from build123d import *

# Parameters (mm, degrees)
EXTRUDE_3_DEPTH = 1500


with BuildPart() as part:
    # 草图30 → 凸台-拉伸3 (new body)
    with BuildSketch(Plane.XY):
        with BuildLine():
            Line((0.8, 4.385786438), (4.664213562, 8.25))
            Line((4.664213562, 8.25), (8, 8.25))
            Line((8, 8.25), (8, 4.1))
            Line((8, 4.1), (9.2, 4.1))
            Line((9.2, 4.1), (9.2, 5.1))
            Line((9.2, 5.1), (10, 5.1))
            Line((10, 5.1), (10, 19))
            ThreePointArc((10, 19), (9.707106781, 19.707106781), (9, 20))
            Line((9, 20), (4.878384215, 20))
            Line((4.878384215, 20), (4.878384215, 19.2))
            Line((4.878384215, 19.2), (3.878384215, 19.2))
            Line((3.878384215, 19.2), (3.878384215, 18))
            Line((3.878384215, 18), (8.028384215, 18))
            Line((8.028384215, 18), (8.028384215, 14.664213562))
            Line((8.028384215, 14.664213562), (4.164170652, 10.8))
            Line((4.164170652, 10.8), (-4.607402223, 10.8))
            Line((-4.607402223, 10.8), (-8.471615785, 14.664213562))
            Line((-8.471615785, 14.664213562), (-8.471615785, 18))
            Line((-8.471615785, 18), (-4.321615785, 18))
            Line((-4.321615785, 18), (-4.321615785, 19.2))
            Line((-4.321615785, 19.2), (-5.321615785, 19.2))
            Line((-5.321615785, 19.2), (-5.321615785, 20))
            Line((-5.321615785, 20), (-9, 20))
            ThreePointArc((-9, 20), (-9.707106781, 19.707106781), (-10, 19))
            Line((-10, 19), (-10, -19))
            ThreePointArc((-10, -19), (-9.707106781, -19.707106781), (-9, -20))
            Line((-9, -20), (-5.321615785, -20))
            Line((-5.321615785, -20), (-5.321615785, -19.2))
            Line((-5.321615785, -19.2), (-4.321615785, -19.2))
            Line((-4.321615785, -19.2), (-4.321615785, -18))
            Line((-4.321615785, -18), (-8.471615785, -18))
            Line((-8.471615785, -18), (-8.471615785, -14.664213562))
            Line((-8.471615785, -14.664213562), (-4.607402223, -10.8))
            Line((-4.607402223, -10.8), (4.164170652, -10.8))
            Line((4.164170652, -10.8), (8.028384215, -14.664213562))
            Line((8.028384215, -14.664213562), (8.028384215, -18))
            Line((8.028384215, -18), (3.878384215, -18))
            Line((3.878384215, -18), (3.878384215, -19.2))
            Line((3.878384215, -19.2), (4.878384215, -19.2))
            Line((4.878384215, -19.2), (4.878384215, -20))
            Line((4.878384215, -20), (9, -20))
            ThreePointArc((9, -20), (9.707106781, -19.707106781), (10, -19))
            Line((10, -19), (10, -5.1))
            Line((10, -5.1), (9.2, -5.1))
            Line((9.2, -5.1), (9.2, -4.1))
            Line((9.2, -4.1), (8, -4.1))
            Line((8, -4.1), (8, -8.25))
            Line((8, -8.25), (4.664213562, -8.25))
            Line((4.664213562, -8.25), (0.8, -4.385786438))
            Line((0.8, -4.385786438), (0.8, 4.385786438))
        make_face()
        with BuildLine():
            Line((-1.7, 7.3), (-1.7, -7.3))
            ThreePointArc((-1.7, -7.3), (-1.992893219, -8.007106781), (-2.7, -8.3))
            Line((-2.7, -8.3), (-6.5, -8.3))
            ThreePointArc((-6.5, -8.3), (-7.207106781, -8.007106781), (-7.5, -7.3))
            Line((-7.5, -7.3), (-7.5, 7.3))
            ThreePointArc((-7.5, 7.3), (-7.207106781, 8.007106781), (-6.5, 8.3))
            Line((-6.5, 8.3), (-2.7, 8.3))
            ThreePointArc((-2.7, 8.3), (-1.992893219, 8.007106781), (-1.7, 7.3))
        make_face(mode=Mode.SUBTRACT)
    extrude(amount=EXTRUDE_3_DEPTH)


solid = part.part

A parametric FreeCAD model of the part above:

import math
import FreeCAD as App
import Part
import Sketcher
Q = App.Units.Quantity

doc = App.newDocument("Part")
body = doc.addObject("PartDesign::Body", "Body")

# Sketch on XY plane
sketch1 = doc.addObject("Sketcher::SketchObject", "Sketch")
body.addObject(sketch1)
sketch1.AttachmentSupport = (doc.XY_Plane, [""])
sketch1.MapMode = "FlatFace"
sketch1.addGeometry([
    Part.LineSegment(App.Vector(0.8, 4.4, 0), App.Vector(4.7, 8.2, 0)),  # 0
    Part.LineSegment(App.Vector(4.7, 8.2, 0), App.Vector(8, 8.2, 0)),  # 1
    Part.LineSegment(App.Vector(8, 8.2, 0), App.Vector(8, 4.1, 0)),  # 2
    Part.LineSegment(App.Vector(8, 4.1, 0), App.Vector(9.2, 4.1, 0)),  # 3
    Part.LineSegment(App.Vector(9.2, 4.1, 0), App.Vector(9.2, 5.1, 0)),  # 4
    Part.LineSegment(App.Vector(9.2, 5.1, 0), App.Vector(10, 5.1, 0)),  # 5
    Part.LineSegment(App.Vector(10, 5.1, 0), App.Vector(10, 19, 0)),  # 6
    Part.ArcOfCircle(Part.Circle(App.Vector(9, 19, 0), App.Vector(0, 0, 1), 1), math.radians(0), math.radians(90)),  # 7
    Part.LineSegment(App.Vector(9, 20, 0), App.Vector(4.9, 20, 0)),  # 8
    Part.LineSegment(App.Vector(4.9, 20, 0), App.Vector(4.9, 19.2, 0)),  # 9
    Part.LineSegment(App.Vector(4.9, 19.2, 0), App.Vector(3.9, 19.2, 0)),  # 10
    Part.LineSegment(App.Vector(3.9, 19.2, 0), App.Vector(3.9, 18, 0)),  # 11
    Part.LineSegment(App.Vector(3.9, 18, 0), App.Vector(8, 18, 0)),  # 12
    Part.LineSegment(App.Vector(8, 18, 0), App.Vector(8, 14.7, 0)),  # 13
    Part.LineSegment(App.Vector(8, 14.7, 0), App.Vector(4.2, 10.8, 0)),  # 14
    Part.LineSegment(App.Vector(4.2, 10.8, 0), App.Vector(-4.6, 10.8, 0)),  # 15
    Part.LineSegment(App.Vector(-4.6, 10.8, 0), App.Vector(-8.5, 14.7, 0)),  # 16
    Part.LineSegment(App.Vector(-8.5, 14.7, 0), App.Vector(-8.5, 18, 0)),  # 17
    Part.LineSegment(App.Vector(-8.5, 18, 0), App.Vector(-4.3, 18, 0)),  # 18
    Part.LineSegment(App.Vector(-4.3, 18, 0), App.Vector(-4.3, 19.2, 0)),  # 19
    Part.LineSegment(App.Vector(-4.3, 19.2, 0), App.Vector(-5.3, 19.2, 0)),  # 20
    Part.LineSegment(App.Vector(-5.3, 19.2, 0), App.Vector(-5.3, 20, 0)),  # 21
    Part.LineSegment(App.Vector(-5.3, 20, 0), App.Vector(-9, 20, 0)),  # 22
    Part.ArcOfCircle(Part.Circle(App.Vector(-9, 19, 0), App.Vector(0, 0, 1), 1), math.radians(90), math.radians(180)),  # 23
    Part.LineSegment(App.Vector(-10, 19, 0), App.Vector(-10, -19, 0)),  # 24
    Part.ArcOfCircle(Part.Circle(App.Vector(-9, -19, 0), App.Vector(0, 0, 1), 1), math.radians(-180), math.radians(-90)),  # 25
    Part.LineSegment(App.Vector(-9, -20, 0), App.Vector(-5.3, -20, 0)),  # 26
    Part.LineSegment(App.Vector(-5.3, -20, 0), App.Vector(-5.3, -19.2, 0)),  # 27
    Part.LineSegment(App.Vector(-5.3, -19.2, 0), App.Vector(-4.3, -19.2, 0)),  # 28
    Part.LineSegment(App.Vector(-4.3, -19.2, 0), App.Vector(-4.3, -18, 0)),  # 29
    Part.LineSegment(App.Vector(-4.3, -18, 0), App.Vector(-8.5, -18, 0)),  # 30
    Part.LineSegment(App.Vector(-8.5, -18, 0), App.Vector(-8.5, -14.7, 0)),  # 31
    Part.LineSegment(App.Vector(-8.5, -14.7, 0), App.Vector(-4.6, -10.8, 0)),  # 32
    Part.LineSegment(App.Vector(-4.6, -10.8, 0), App.Vector(4.2, -10.8, 0)),  # 33
    Part.LineSegment(App.Vector(4.2, -10.8, 0), App.Vector(8, -14.7, 0)),  # 34
    Part.LineSegment(App.Vector(8, -14.7, 0), App.Vector(8, -18, 0)),  # 35
    Part.LineSegment(App.Vector(8, -18, 0), App.Vector(3.9, -18, 0)),  # 36
    Part.LineSegment(App.Vector(3.9, -18, 0), App.Vector(3.9, -19.2, 0)),  # 37
    Part.LineSegment(App.Vector(3.9, -19.2, 0), App.Vector(4.9, -19.2, 0)),  # 38
    Part.LineSegment(App.Vector(4.9, -19.2, 0), App.Vector(4.9, -20, 0)),  # 39
    Part.LineSegment(App.Vector(4.9, -20, 0), App.Vector(9, -20, 0)),  # 40
    Part.ArcOfCircle(Part.Circle(App.Vector(9, -19, 0), App.Vector(0, 0, 1), 1), math.radians(-90), math.radians(0)),  # 41
    Part.LineSegment(App.Vector(10, -19, 0), App.Vector(10, -5.1, 0)),  # 42
    Part.LineSegment(App.Vector(10, -5.1, 0), App.Vector(9.2, -5.1, 0)),  # 43
    Part.LineSegment(App.Vector(9.2, -5.1, 0), App.Vector(9.2, -4.1, 0)),  # 44
    Part.LineSegment(App.Vector(9.2, -4.1, 0), App.Vector(8, -4.1, 0)),  # 45
    Part.LineSegment(App.Vector(8, -4.1, 0), App.Vector(8, -8.2, 0)),  # 46
    Part.LineSegment(App.Vector(8, -8.2, 0), App.Vector(4.7, -8.2, 0)),  # 47
    Part.LineSegment(App.Vector(4.7, -8.2, 0), App.Vector(0.8, -4.4, 0)),  # 48
    Part.LineSegment(App.Vector(0.8, -4.4, 0), App.Vector(0.8, 4.4, 0)),  # 49
    Part.ArcOfCircle(Part.Circle(App.Vector(-2.7, 7.3, 0), App.Vector(0, 0, 1), 1), math.radians(0), math.radians(90)),  # 50
    Part.LineSegment(App.Vector(-1.7, 7.3, 0), App.Vector(-1.7, -7.3, 0)),  # 51
    Part.ArcOfCircle(Part.Circle(App.Vector(-2.7, -7.3, 0), App.Vector(0, 0, 1), 1), math.radians(-90), math.radians(0)),  # 52
    Part.LineSegment(App.Vector(-2.7, -8.3, 0), App.Vector(-6.5, -8.3, 0)),  # 53
    Part.ArcOfCircle(Part.Circle(App.Vector(-6.5, -7.3, 0), App.Vector(0, 0, 1), 1), math.radians(-180), math.radians(-90)),  # 54
    Part.LineSegment(App.Vector(-7.5, -7.3, 0), App.Vector(-7.5, 7.3, 0)),  # 55
    Part.ArcOfCircle(Part.Circle(App.Vector(-6.5, 7.3, 0), App.Vector(0, 0, 1), 1), math.radians(90), math.radians(180)),  # 56
    Part.LineSegment(App.Vector(-6.5, 8.3, 0), App.Vector(-2.7, 8.3, 0)),  # 57
], False)
sketch1.addConstraint([
    Sketcher.Constraint("Coincident", 0, 2, 1, 1),
    Sketcher.Constraint("Coincident", 1, 2, 2, 1),
    Sketcher.Constraint("Coincident", 2, 2, 3, 1),
    Sketcher.Constraint("Coincident", 3, 2, 4, 1),
    Sketcher.Constraint("Coincident", 4, 2, 5, 1),
    Sketcher.Constraint("Coincident", 5, 2, 6, 1),
    Sketcher.Constraint("Tangent", 6, 2, 7, 1),
    Sketcher.Constraint("Tangent", 7, 2, 8, 1),
    Sketcher.Constraint("Coincident", 8, 2, 9, 1),
    Sketcher.Constraint("Coincident", 9, 2, 10, 1),
    Sketcher.Constraint("Coincident", 10, 2, 11, 1),
    Sketcher.Constraint("Coincident", 11, 2, 12, 1),
    Sketcher.Constraint("Coincident", 12, 2, 13, 1),
    Sketcher.Constraint("Coincident", 13, 2, 14, 1),
    Sketcher.Constraint("Coincident", 14, 2, 15, 1),
    Sketcher.Constraint("Coincident", 15, 2, 16, 1),
    Sketcher.Constraint("Coincident", 16, 2, 17, 1),
    Sketcher.Constraint("Coincident", 17, 2, 18, 1),
    Sketcher.Constraint("Coincident", 18, 2, 19, 1),
    Sketcher.Constraint("Coincident", 19, 2, 20, 1),
    Sketcher.Constraint("Coincident", 20, 2, 21, 1),
    Sketcher.Constraint("Coincident", 21, 2, 22, 1),
    Sketcher.Constraint("Tangent", 22, 2, 23, 1),
    Sketcher.Constraint("Tangent", 23, 2, 24, 1),
    Sketcher.Constraint("Tangent", 24, 2, 25, 1),
    Sketcher.Constraint("Tangent", 25, 2, 26, 1),
    Sketcher.Constraint("Coincident", 26, 2, 27, 1),
    Sketcher.Constraint("Coincident", 27, 2, 28, 1),
    Sketcher.Constraint("Coincident", 28, 2, 29, 1),
    Sketcher.Constraint("Coincident", 29, 2, 30, 1),
    Sketcher.Constraint("Coincident", 30, 2, 31, 1),
    Sketcher.Constraint("Coincident", 31, 2, 32, 1),
    Sketcher.Constraint("Coincident", 32, 2, 33, 1),
    Sketcher.Constraint("Coincident", 33, 2, 34, 1),
    Sketcher.Constraint("Coincident", 34, 2, 35, 1),
    Sketcher.Constraint("Coincident", 35, 2, 36, 1),
    Sketcher.Constraint("Coincident", 36, 2, 37, 1),
    Sketcher.Constraint("Coincident", 37, 2, 38, 1),
    Sketcher.Constraint("Coincident", 38, 2, 39, 1),
    Sketcher.Constraint("Coincident", 39, 2, 40, 1),
    Sketcher.Constraint("Tangent", 40, 2, 41, 1),
    Sketcher.Constraint("Tangent", 41, 2, 42, 1),
    Sketcher.Constraint("Coincident", 42, 2, 43, 1),
    Sketcher.Constraint("Coincident", 43, 2, 44, 1),
    Sketcher.Constraint("Coincident", 44, 2, 45, 1),
    Sketcher.Constraint("Coincident", 45, 2, 46, 1),
    Sketcher.Constraint("Coincident", 46, 2, 47, 1),
    Sketcher.Constraint("Coincident", 47, 2, 48, 1),
    Sketcher.Constraint("Coincident", 48, 2, 49, 1),
    Sketcher.Constraint("Coincident", 49, 2, 0, 1),
    Sketcher.Constraint("Tangent", 50, 1, 51, 1),
    Sketcher.Constraint("Tangent", 51, 2, 52, 2),
    Sketcher.Constraint("Tangent", 52, 1, 53, 1),
    Sketcher.Constraint("Tangent", 53, 2, 54, 2),
    Sketcher.Constraint("Tangent", 54, 1, 55, 1),
    Sketcher.Constraint("Tangent", 55, 2, 56, 2),
    Sketcher.Constraint("Tangent", 56, 1, 57, 1),
    Sketcher.Constraint("Tangent", 57, 2, 50, 2),
    Sketcher.Constraint("Horizontal", 1),
    Sketcher.Constraint("Vertical", 2),
    Sketcher.Constraint("Horizontal", 3),
    Sketcher.Constraint("Vertical", 4),
    Sketcher.Constraint("Horizontal", 5),
    Sketcher.Constraint("Vertical", 6),
    Sketcher.Constraint("Horizontal", 8),
    Sketcher.Constraint("Vertical", 9),
    Sketcher.Constraint("Horizontal", 10),
    Sketcher.Constraint("Vertical", 11),
    Sketcher.Constraint("Horizontal", 12),
    Sketcher.Constraint("Vertical", 13),
    Sketcher.Constraint("Horizontal", 15),
    Sketcher.Constraint("Vertical", 17),
    Sketcher.Constraint("Horizontal", 18),
    Sketcher.Constraint("Vertical", 19),
    Sketcher.Constraint("Horizontal", 20),
    Sketcher.Constraint("Vertical", 21),
    Sketcher.Constraint("Horizontal", 22),
    Sketcher.Constraint("Vertical", 24),
    Sketcher.Constraint("Horizontal", 26),
    Sketcher.Constraint("Vertical", 27),
    Sketcher.Constraint("Horizontal", 28),
    Sketcher.Constraint("Vertical", 29),
    Sketcher.Constraint("Horizontal", 30),
    Sketcher.Constraint("Vertical", 31),
    Sketcher.Constraint("Horizontal", 33),
    Sketcher.Constraint("Vertical", 35),
    Sketcher.Constraint("Horizontal", 36),
    Sketcher.Constraint("Vertical", 37),
    Sketcher.Constraint("Horizontal", 38),
    Sketcher.Constraint("Vertical", 39),
    Sketcher.Constraint("Horizontal", 40),
    Sketcher.Constraint("Vertical", 42),
    Sketcher.Constraint("Horizontal", 43),
    Sketcher.Constraint("Vertical", 44),
    Sketcher.Constraint("Horizontal", 45),
    Sketcher.Constraint("Vertical", 46),
    Sketcher.Constraint("Horizontal", 47),
    Sketcher.Constraint("Vertical", 49),
    Sketcher.Constraint("Vertical", 51),
    Sketcher.Constraint("Horizontal", 53),
    Sketcher.Constraint("Vertical", 55),
    Sketcher.Constraint("Horizontal", 57),
    Sketcher.Constraint("Equal", 7, 23),
    Sketcher.Constraint("Equal", 23, 25),
    Sketcher.Constraint("Equal", 25, 41),
    Sketcher.Constraint("Equal", 41, 50),
    Sketcher.Constraint("Equal", 50, 52),
    Sketcher.Constraint("Equal", 52, 54),
    Sketcher.Constraint("Equal", 54, 56),
    Sketcher.Constraint("Symmetric", 7, 3, 25, 3, -1, 1),
    Sketcher.Constraint("Symmetric", 23, 3, 41, 3, -1, 1),
    Sketcher.Constraint("Symmetric", 21, 2, 26, 2, -1),
    Sketcher.Constraint("Symmetric", 19, 2, 28, 2, -1),
    Sketcher.Constraint("Symmetric", 17, 2, 30, 2, -1),
    Sketcher.Constraint("Symmetric", 15, 2, 32, 2, -1),
    Sketcher.Constraint("Symmetric", 13, 2, 34, 2, -1),
    Sketcher.Constraint("Symmetric", 11, 2, 36, 2, -1),
    Sketcher.Constraint("Symmetric", 9, 2, 38, 2, -1),
    Sketcher.Constraint("Symmetric", 4, 2, 43, 2, -1),
    Sketcher.Constraint("Symmetric", 2, 2, 45, 2, -1),
    Sketcher.Constraint("Symmetric", 0, 2, 47, 2, -1),
    Sketcher.Constraint("Parallel", 0, 14),
    Sketcher.Constraint("Perpendicular", 14, 16),
    Sketcher.Constraint("Perpendicular", 16, 32),
    Sketcher.Constraint("Perpendicular", 32, 34),
    Sketcher.Constraint("Parallel", 34, 48),
    Sketcher.Constraint("Horizontal", 13, 2, 16, 2),
    Sketcher.Constraint("Horizontal", 12, 2, 17, 2),
    Sketcher.Constraint("Horizontal", 10, 2, 19, 2),
    Sketcher.Constraint("Horizontal", 31, 2, 34, 2),
    Sketcher.Constraint("Equal", 12, 18),
    Sketcher.Constraint("Equal", 10, 20),
    Sketcher.Constraint("Equal", 36, 2),
    Sketcher.Constraint("Equal", 38, 4),
    Sketcher.Constraint("Equal", 43, 9),
    Sketcher.Constraint("Equal", 45, 11),
    Sketcher.Constraint("Equal", 47, 13),
    Sketcher.Constraint("Equal", 33, 49),
    Sketcher.Constraint("Equal", 0, 14),
    Sketcher.Constraint("Radius", 7, Q("1 mm")),
    Sketcher.Constraint("DistanceX", 10, 2, 10, 1, Q("1 mm")),
    Sketcher.Constraint("DistanceY", 24, 2, 24, 1, Q("38 mm")),
    Sketcher.Constraint("DistanceX", 3, 1, 3, 2, Q("1.2 mm")),
    Sketcher.Constraint("DistanceX", 5, 1, 5, 2, Q("0.8 mm")),
    Sketcher.Constraint("DistanceX", 53, 2, 53, 1, Q("3.8 mm")),
    Sketcher.Constraint("DistanceY", 6, 1, 6, 2, Q("13.9 mm")),
    Sketcher.Constraint("DistanceY", 51, 2, 51, 1, Q("14.6 mm")),
    Sketcher.Constraint("DistanceX", -1, 1, 7, 3, Q("9 mm")),
    Sketcher.Constraint("DistanceX", 12, 1, 12, 2, Q("4.15 mm")),
    Sketcher.Constraint("DistanceX", 50, 3, -1, 1, Q("2.7 mm")),
    Sketcher.Constraint("DistanceY", -1, 1, 50, 3, Q("7.3 mm")),
    Sketcher.Constraint("DistanceY", -1, 1, 14, 2, Q("10.8 mm")),
    Sketcher.Constraint("DistanceX", 1, 1, 1, 2, Q("3.335786 mm")),
    Sketcher.Constraint("DistanceX", 8, 2, 8, 1, Q("4.121616 mm")),
])
pad1 = doc.addObject("PartDesign::Pad", "Pad")
body.addObject(pad1)
pad1.Profile = sketch1
pad1.Length = 1500

doc.recompute()
